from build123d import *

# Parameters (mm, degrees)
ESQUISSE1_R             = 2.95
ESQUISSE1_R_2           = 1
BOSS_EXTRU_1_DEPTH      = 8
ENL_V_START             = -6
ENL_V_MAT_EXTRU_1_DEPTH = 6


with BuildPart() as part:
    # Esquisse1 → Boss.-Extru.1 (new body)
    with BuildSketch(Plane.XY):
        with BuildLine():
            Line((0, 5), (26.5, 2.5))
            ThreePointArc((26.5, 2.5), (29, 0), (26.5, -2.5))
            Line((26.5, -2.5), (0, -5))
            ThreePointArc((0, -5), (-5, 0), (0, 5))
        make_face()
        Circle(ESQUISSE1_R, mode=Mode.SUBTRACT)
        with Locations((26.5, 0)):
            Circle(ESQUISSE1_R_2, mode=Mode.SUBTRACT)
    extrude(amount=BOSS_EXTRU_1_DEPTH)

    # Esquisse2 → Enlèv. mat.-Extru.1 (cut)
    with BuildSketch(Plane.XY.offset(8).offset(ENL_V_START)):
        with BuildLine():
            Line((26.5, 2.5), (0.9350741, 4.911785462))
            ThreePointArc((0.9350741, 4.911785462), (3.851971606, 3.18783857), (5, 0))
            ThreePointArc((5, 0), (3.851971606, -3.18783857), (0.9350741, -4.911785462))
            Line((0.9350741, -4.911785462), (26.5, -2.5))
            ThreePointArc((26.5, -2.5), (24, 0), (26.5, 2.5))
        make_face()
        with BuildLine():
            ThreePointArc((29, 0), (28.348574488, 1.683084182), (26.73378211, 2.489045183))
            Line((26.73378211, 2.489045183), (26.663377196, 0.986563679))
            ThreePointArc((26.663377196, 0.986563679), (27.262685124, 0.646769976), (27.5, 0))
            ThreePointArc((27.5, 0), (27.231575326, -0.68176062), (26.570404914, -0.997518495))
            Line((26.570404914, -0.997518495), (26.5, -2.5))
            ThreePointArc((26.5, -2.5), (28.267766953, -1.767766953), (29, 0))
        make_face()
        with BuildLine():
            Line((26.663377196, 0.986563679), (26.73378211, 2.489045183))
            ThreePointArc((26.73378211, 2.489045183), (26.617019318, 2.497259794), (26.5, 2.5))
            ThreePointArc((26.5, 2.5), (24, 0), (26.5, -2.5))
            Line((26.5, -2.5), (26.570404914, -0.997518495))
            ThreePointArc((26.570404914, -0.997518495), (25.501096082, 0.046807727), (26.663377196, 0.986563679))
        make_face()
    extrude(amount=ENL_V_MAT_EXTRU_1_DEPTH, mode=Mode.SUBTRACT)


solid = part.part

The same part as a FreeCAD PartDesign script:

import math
import FreeCAD as App
import Part
import Sketcher

doc = App.newDocument("Part")
body = doc.addObject("PartDesign::Body", "Body")

# Sketch on XY plane
sketch1 = body.newObject("Sketcher::SketchObject", "Sketch")
sketch1.AttachmentSupport = (doc.getObject("XY_Plane"), [""])
sketch1.MapMode = "FlatFace"
sketch1.addGeometry([
    Part.LineSegment(App.Vector(26.5, 2.5, 0), App.Vector(0, 5, 0)),  # 0
    Part.ArcOfCircle(Part.Circle(App.Vector(0, 0, 0), App.Vector(0, 0, 1), 5), math.radians(90), math.radians(270)),  # 1
    Part.LineSegment(App.Vector(0, -5, 0), App.Vector(26.5, -2.5, 0)),  # 2
    Part.ArcOfCircle(Part.Circle(App.Vector(26.5, 0, 0), App.Vector(0, 0, 1), 2.5), math.radians(-90), math.radians(90)),  # 3
    Part.Circle(App.Vector(26.5, 0, 0), App.Vector(0, 0, 1), 1),  # 4
    Part.Circle(App.Vector(0, 0, 0), App.Vector(0, 0, 1), 2.95),  # 5
], False)
sketch1.addConstraint([
    Sketcher.Constraint("Coincident", 0, 2, 1, 1),
    Sketcher.Constraint("Coincident", 1, 2, 2, 1),
    Sketcher.Constraint("Coincident", 2, 2, 3, 1),
    Sketcher.Constraint("Coincident", 3, 2, 0, 1),
    Sketcher.Constraint("Coincident", 1, 3, -1, 1),
    Sketcher.Constraint("Coincident", 5, 3, -1, 1),
    Sketcher.Constraint("Coincident", 4, 3, 3, 3),
    Sketcher.Constraint("Symmetric", 2, 2, 3, 2, -1),
    Sketcher.Constraint("PointOnObject", 0, 2, -2),
    Sketcher.Constraint("PointOnObject", 1, 2, -2),
    Sketcher.Constraint("Vertical", 4, 3, 2, 2),
    Sketcher.Constraint("Diameter", 4, 2.0),
    Sketcher.Constraint("Radius", 1, 5.0),
    Sketcher.Constraint("Diameter", 5, 5.9),
    Sketcher.Constraint("Radius", 3, 2.5),
    Sketcher.Constraint("DistanceX", -1, 1, 3, 3, 26.5),
])
pad1 = body.newObject("PartDesign::Pad", "Pad")
pad1.Profile = sketch1
pad1.Length = 8

# Sketch on XY plane
sketch2 = body.newObject("Sketcher::SketchObject", "Sketch001")
sketch2.AttachmentSupport = (doc.getObject("XY_Plane"), [""])
sketch2.MapMode = "FlatFace"
sketch2.AttachmentOffset = App.Placement(App.Vector(0, 0, 2), App.Rotation())
sketch2.addGeometry([
    Part.ArcOfCircle(Part.Circle(App.Vector(26.5, 0, 0), App.Vector(0, 0, 1), 2.5), math.radians(84.634269), math.radians(90)),  # 0
    Part.LineSegment(App.Vector(26.5, 2.5, 0), App.Vector(0.935074, 4.911785, 0)),  # 1
    Part.ArcOfCircle(Part.Circle(App.Vector(0, 0, 0), App.Vector(0, 0, 1), 5), math.radians(0), math.radians(79.221376)),  # 2
    Part.ArcOfCircle(Part.Circle(App.Vector(0, 0, 0), App.Vector(0, 0, 1), 5), math.radians(-79.221376), math.radians(0)),  # 3
    Part.LineSegment(App.Vector(0.935074, -4.911785, 0), App.Vector(26.5, -2.5, 0)),  # 4
    Part.ArcOfCircle(Part.Circle(App.Vector(26.5, 0, 0), App.Vector(0, 0, 1), 2.5), math.radians(-90), math.radians(0)),  # 5
    Part.ArcOfCircle(Part.Circle(App.Vector(26.5, 0, 0), App.Vector(0, 0, 1), 2.5), math.radians(0), math.radians(84.634269)),  # 6
    Part.ArcOfCircle(Part.Circle(App.Vector(26.5, 0, 0), App.Vector(0, 0, 1), 1), math.radians(80.597025), math.radians(274.037244)),  # 7
    Part.ArcOfCircle(Part.Circle(App.Vector(26.5, 0, 0), App.Vector(0, 0, 1), 1), math.radians(0), math.radians(80.597025)),  # 8
    Part.ArcOfCircle(Part.Circle(App.Vector(26.5, 0, 0), App.Vector(0, 0, 1), 1), math.radians(-85.962756), math.radians(0)),  # 9
], False)
sketch2.addConstraint([
    Sketcher.Constraint("Coincident", 0, 2, 1, 1),
    Sketcher.Constraint("Coincident", 1, 2, 2, 2),
    Sketcher.Constraint("Tangent", 2, 1, 3, 2),
    Sketcher.Constraint("Coincident", 3, 1, 4, 1),
    Sketcher.Constraint("Coincident", 4, 2, 5, 1),
    Sketcher.Constraint("Tangent", 5, 2, 6, 1),
    Sketcher.Constraint("Tangent", 6, 2, 0, 1),
    Sketcher.Constraint("Tangent", 7, 1, 8, 2),
    Sketcher.Constraint("Tangent", 8, 1, 9, 2),
    Sketcher.Constraint("Tangent", 9, 1, 7, 2),
    Sketcher.Constraint("Coincident", 2, 3, -1, 1),
    Sketcher.Constraint("Coincident", 5, 3, 0, 3),
    Sketcher.Constraint("Coincident", 7, 3, 0, 3),
    Sketcher.Constraint("Equal", 2, 3),
    Sketcher.Constraint("Symmetric", 0, 2, 4, 2, -1),
    Sketcher.Constraint("PointOnObject", 2, 1, -1),
    Sketcher.Constraint("PointOnObject", 5, 2, -1),
    Sketcher.Constraint("PointOnObject", 8, 1, -1),
    Sketcher.Constraint("Vertical", 9, 3, 0, 2),
    Sketcher.Constraint("Vertical", 1, 2, 3, 1),
    Sketcher.Constraint("Radius", 2, 5.0),
    Sketcher.Constraint("Radius", 7, 1.0),
    Sketcher.Constraint("Radius", 0, 2.5),
    Sketcher.Constraint("DistanceX", -1, 1, 5, 2, 29.0),
    Sketcher.Constraint("DistanceY", 9, 1, -1, 1, 0.997518),
    Sketcher.Constraint("DistanceY", 3, 1, 1, 2, 9.823571),
    Sketcher.Constraint("DistanceX", -1, 1, 6, 2, 26.733782),
    Sketcher.Constraint("DistanceX", -1, 1, 7, 1, 26.663377),
])
pocket1 = body.newObject("PartDesign::Pocket", "Pocket")
pocket1.Profile = sketch2
pocket1.Length = 6
pocket1.Reversed = True

doc.recompute()
